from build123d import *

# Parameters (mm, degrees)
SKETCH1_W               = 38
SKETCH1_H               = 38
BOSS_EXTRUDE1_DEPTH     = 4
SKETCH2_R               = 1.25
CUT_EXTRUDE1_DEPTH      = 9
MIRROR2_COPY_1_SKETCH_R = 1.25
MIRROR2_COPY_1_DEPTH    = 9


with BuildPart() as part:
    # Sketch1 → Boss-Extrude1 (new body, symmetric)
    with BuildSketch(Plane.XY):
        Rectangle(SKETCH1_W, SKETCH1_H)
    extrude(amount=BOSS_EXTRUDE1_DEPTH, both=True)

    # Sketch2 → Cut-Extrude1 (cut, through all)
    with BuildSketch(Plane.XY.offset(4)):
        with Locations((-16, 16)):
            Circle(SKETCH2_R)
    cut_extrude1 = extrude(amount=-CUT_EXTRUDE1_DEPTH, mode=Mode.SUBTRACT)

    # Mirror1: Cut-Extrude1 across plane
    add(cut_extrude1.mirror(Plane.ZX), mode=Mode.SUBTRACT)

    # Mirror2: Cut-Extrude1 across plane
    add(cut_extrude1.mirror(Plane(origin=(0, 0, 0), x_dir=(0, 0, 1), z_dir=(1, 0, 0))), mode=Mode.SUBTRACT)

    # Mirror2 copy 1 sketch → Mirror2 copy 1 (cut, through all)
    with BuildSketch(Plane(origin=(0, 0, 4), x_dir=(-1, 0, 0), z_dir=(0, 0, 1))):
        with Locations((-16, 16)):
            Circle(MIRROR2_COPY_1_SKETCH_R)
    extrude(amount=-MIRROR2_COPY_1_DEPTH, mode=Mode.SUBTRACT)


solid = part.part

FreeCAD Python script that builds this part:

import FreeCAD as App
import Part
import Sketcher

V = App.Vector


def add_polygon(sketch, points):
    """Adds a closed chain of lines whose ends are joined by coincident constraints."""
    first, n = sketch.GeometryCount, len(points)
    for a, b in zip(points, points[1:] + points[:1]):
        sketch.addGeometry(Part.LineSegment(App.Vector(*a, 0), App.Vector(*b, 0)), False)
    for i in range(n):
        sketch.addConstraint(Sketcher.Constraint("Coincident", first + i, 2, first + (i + 1) % n, 1))

doc = App.newDocument("Part")
body = doc.addObject("PartDesign::Body", "Body")

# Sketch on XY plane
sketch1 = body.newObject("Sketcher::SketchObject", "Sketch")
sketch1.AttachmentSupport = (doc.getObject("XY_Plane"), [""])
sketch1.MapMode = "FlatFace"
add_polygon(sketch1, [(-19, 19), (-19, -19), (19, -19), (19, 19)])  # lines 0-3
sketch1.addConstraint(Sketcher.Constraint("Vertical", 0))
sketch1.addConstraint(Sketcher.Constraint("Horizontal", 1))
sketch1.addConstraint(Sketcher.Constraint("Vertical", 2))
sketch1.addConstraint(Sketcher.Constraint("Horizontal", 3))
sketch1.addConstraint(Sketcher.Constraint("Symmetric", 0, 2, 2, 2, -1, 1))
sketch1.addConstraint(Sketcher.Constraint("Equal", 3, 0))
sketch1.addConstraint(Sketcher.Constraint("DistanceX", 1, 1, 1, 2, 38.0))
pad1 = body.newObject("PartDesign::Pad", "Pad")
pad1.Profile = sketch1
pad1.Length = 8
pad1.Midplane = True

# Sketch on XY plane
sketch2 = body.newObject("Sketcher::SketchObject", "Sketch001")
sketch2.AttachmentSupport = (doc.getObject("XY_Plane"), [""])
sketch2.MapMode = "FlatFace"
sketch2.AttachmentOffset = App.Placement(V(0, 0, 4), App.Rotation())
sketch2.addGeometry(Part.Circle(V(-16, 16, 0), V(0, 0, 1), 1.2), False)
sketch2.addConstraint(Sketcher.Constraint("Diameter", 0, 2.5))
sketch2.addConstraint(Sketcher.Constraint("DistanceX", 0, 3, -1, 1, 16.0))
sketch2.addConstraint(Sketcher.Constraint("DistanceY", -1, 1, 0, 3, 16.0))
pocket1 = body.newObject("PartDesign::Pocket", "Pocket")
pocket1.Profile = sketch2
pocket1.Type = "ThroughAll"
doc.recompute()

mirrored = body.newObject("PartDesign::Mirrored", "Mirrored")
mirrored.Originals = [pocket1]
mirrored.MirrorPlane = (doc.getObject("XZ_Plane"), [""])
body.Tip = mirrored
doc.recompute()

mirrored2 = body.newObject("PartDesign::Mirrored", "Mirrored001")
mirrored2.Originals = [pocket1]
mirrored2.MirrorPlane = (doc.getObject("YZ_Plane"), [""])
body.Tip = mirrored2

# Sketch on XY plane
sketch3 = body.newObject("Sketcher::SketchObject", "Sketch002")
sketch3.AttachmentSupport = (doc.getObject("XY_Plane"), [""])
sketch3.MapMode = "FlatFace"
sketch3.AttachmentOffset = App.Placement(V(0, 0, 4), App.Rotation())
sketch3.addGeometry(Part.Circle(V(16, -16, 0), V(0, 0, 1), 1.2), False)
sketch3.addConstraint(Sketcher.Constraint("Diameter", 0, 2.5))
sketch3.addConstraint(Sketcher.Constraint("DistanceX", -1, 1, 0, 3, 16.0))
sketch3.addConstraint(Sketcher.Constraint("DistanceY", 0, 3, -1, 1, 16.0))
pocket2 = body.newObject("PartDesign::Pocket", "Pocket001")
pocket2.Profile = sketch3
pocket2.Type = "ThroughAll"

doc.recompute()
